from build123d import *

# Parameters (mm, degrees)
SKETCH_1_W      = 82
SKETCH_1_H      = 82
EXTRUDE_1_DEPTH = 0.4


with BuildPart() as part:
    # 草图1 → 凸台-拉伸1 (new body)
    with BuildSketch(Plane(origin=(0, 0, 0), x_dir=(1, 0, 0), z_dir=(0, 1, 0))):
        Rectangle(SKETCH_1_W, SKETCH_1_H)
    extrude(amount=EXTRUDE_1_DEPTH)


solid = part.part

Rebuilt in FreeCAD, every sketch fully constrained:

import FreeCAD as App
import Part
import Sketcher
Q = App.Units.Quantity


def add_polygon(sketch, points):
    """Adds a closed chain of lines whose ends are joined by coincident constraints."""
    first, n = sketch.GeometryCount, len(points)
    for a, b in zip(points, points[1:] + points[:1]):
        sketch.addGeometry(Part.LineSegment(App.Vector(*a, 0), App.Vector(*b, 0)), False)
    for i in range(n):
        sketch.addConstraint(Sketcher.Constraint("Coincident", first + i, 2, first + (i + 1) % n, 1))

doc = App.newDocument("Part")
body = doc.addObject("PartDesign::Body", "Body")

# Sketch on XZ plane
sketch1 = body.newObject("Sketcher::SketchObject", "Sketch")
sketch1.AttachmentSupport = (doc.getObject("XZ_Plane"), [""])
sketch1.MapMode = "FlatFace"
add_polygon(sketch1, [(-41, -41), (-41, 41), (41, 41), (41, -41)])  # lines 0-3
sketch1.addConstraint([
    Sketcher.Constraint("Vertical", 0),
    Sketcher.Constraint("Horizontal", 1),
    Sketcher.Constraint("Vertical", 2),
    Sketcher.Constraint("Horizontal", 3),
    Sketcher.Constraint("Symmetric", 0, 2, 2, 2, -1, 1),
    Sketcher.Constraint("Equal", 3, 0),
    Sketcher.Constraint("DistanceX", 1, 1, 1, 2, Q("82 mm")),
])
pad1 = body.newObject("PartDesign::Pad", "Pad")
pad1.Profile = sketch1
pad1.Length = 0.4
pad1.Reversed = True

doc.recompute()
